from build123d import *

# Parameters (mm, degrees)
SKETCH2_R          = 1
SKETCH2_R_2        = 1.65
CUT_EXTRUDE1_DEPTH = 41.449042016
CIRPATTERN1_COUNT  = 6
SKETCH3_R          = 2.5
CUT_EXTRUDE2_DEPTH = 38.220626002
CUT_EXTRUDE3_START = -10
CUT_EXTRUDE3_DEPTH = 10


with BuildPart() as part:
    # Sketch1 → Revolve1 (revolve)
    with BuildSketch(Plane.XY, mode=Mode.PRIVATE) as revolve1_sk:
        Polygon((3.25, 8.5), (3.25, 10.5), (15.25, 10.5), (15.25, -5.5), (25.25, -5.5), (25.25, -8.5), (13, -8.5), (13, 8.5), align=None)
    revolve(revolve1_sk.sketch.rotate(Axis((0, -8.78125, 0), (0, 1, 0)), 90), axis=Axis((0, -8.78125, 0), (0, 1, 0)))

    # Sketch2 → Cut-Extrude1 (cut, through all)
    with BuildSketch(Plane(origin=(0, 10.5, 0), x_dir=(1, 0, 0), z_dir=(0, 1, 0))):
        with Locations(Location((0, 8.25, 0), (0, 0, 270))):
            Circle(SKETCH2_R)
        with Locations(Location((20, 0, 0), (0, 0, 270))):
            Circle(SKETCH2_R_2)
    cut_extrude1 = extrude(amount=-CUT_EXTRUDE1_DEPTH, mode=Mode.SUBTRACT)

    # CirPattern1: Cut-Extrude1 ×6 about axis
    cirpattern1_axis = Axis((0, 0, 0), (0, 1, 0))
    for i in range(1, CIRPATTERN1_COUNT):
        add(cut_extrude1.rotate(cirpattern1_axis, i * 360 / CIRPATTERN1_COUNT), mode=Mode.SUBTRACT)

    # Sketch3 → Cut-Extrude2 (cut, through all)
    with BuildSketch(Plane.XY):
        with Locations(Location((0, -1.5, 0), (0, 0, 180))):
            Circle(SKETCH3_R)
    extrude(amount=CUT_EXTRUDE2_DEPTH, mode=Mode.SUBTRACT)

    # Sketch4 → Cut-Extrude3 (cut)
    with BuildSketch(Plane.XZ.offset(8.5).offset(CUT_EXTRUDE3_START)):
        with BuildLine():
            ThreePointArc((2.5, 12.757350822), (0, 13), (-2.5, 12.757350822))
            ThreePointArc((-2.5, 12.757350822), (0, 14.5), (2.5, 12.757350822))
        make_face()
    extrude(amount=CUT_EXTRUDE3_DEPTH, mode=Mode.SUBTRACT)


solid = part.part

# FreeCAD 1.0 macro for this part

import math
import FreeCAD as App
import Part
import Sketcher
Q = App.Units.Quantity

doc = App.newDocument("Part")
params = doc.addObject("Spreadsheet::Sheet", "Params")
for row, (alias, value) in enumerate([
    ("sketch1_width", "10 mm"),
    ("sketch1_width2", "12 mm"),
    ("sketch1_height", "2 mm"),
    ("sketch1_height2", "17 mm"),
    ("sketch1_height3", "3 mm"),
    ("revolution_angle", "360 deg"),
    ("sketch2_diameter", "2 mm"),
    ("sketch2_diameter2", "3.3 mm"),
    ("sketch3_diameter", "5 mm"),
    ("sketch4_radius", "13 mm"),
    ("pocket3_length", "10 mm"),
], start=1):
    params.set(f"A{row}", alias)
    params.set(f"B{row}", "=" + value)
    params.setAlias(f"B{row}", alias)

body = doc.addObject("PartDesign::Body", "Body")

sketch1 = body.newObject("Sketcher::SketchObject", "Sketch")
sketch1.AttachmentSupport = (doc.getObject("XY_Plane"), [""])
sketch1.MapMode = "FlatFace"
sketch1.addGeometry(Part.LineSegment(App.Vector(3.25, 10.5, 0), App.Vector(3.25, 8.5, 0)), False)
sketch1.addGeometry(Part.LineSegment(App.Vector(3.25, 8.5, 0), App.Vector(13, 8.5, 0)), False)
sketch1.addGeometry(Part.LineSegment(App.Vector(13, 8.5, 0), App.Vector(13, -8.5, 0)), False)
sketch1.addGeometry(Part.LineSegment(App.Vector(13, -8.5, 0), App.Vector(25.25, -8.5, 0)), False)
sketch1.addGeometry(Part.LineSegment(App.Vector(25.25, -8.5, 0), App.Vector(25.25, -5.5, 0)), False)
sketch1.addGeometry(Part.LineSegment(App.Vector(25.25, -5.5, 0), App.Vector(15.25, -5.5, 0)), False)
sketch1.addGeometry(Part.LineSegment(App.Vector(15.25, -5.5, 0), App.Vector(15.25, 10.5, 0)), False)
sketch1.addGeometry(Part.LineSegment(App.Vector(15.25, 10.5, 0), App.Vector(3.25, 10.5, 0)), False)
sketch1.addConstraint(Sketcher.Constraint("Coincident", 0, 2, 1, 1))
sketch1.addConstraint(Sketcher.Constraint("Coincident", 1, 2, 2, 1))
sketch1.addConstraint(Sketcher.Constraint("Coincident", 2, 2, 3, 1))
sketch1.addConstraint(Sketcher.Constraint("Coincident", 3, 2, 4, 1))
sketch1.addConstraint(Sketcher.Constraint("Coincident", 4, 2, 5, 1))
sketch1.addConstraint(Sketcher.Constraint("Coincident", 5, 2, 6, 1))
sketch1.addConstraint(Sketcher.Constraint("Coincident", 6, 2, 7, 1))
sketch1.addConstraint(Sketcher.Constraint("Coincident", 7, 2, 0, 1))
sketch1.addConstraint(Sketcher.Constraint("Vertical", 0))
sketch1.addConstraint(Sketcher.Constraint("Horizontal", 1))
sketch1.addConstraint(Sketcher.Constraint("Vertical", 2))
sketch1.addConstraint(Sketcher.Constraint("Horizontal", 3))
sketch1.addConstraint(Sketcher.Constraint("Vertical", 4))
sketch1.addConstraint(Sketcher.Constraint("Horizontal", 5))
sketch1.addConstraint(Sketcher.Constraint("Vertical", 6))
sketch1.addConstraint(Sketcher.Constraint("Horizontal", 7))
sketch1.addConstraint(Sketcher.Constraint("DistanceX", 5, 2, 5, 1, Q("10 mm")))
sketch1.addConstraint(Sketcher.Constraint("DistanceX", 7, 2, 7, 1, Q("12 mm")))
sketch1.addConstraint(Sketcher.Constraint("DistanceY", 0, 2, 0, 1, Q("2 mm")))
sketch1.addConstraint(Sketcher.Constraint("DistanceY", 2, 2, 2, 1, Q("17 mm")))
sketch1.addConstraint(Sketcher.Constraint("DistanceY", 4, 1, 4, 2, Q("3 mm")))
sketch1.addConstraint(Sketcher.Constraint("DistanceX", -1, 1, 1, 2, Q("13 mm")))
sketch1.addConstraint(Sketcher.Constraint("DistanceX", 1, 1, 1, 2, Q("9.75 mm")))
sketch1.addConstraint(Sketcher.Constraint("DistanceY", -1, 1, 0, 2, Q("8.5 mm")))
sketch1.setExpression("Constraints[16]", "Params.sketch1_width")
sketch1.setExpression("Constraints[17]", "Params.sketch1_width2")
sketch1.setExpression("Constraints[18]", "Params.sketch1_height")
sketch1.setExpression("Constraints[19]", "Params.sketch1_height2")
sketch1.setExpression("Constraints[20]", "Params.sketch1_height3")
revolution = body.newObject("PartDesign::Revolution", "Revolution")
revolution.Profile = sketch1
revolution.ReferenceAxis = (sketch1, ["V_Axis"])
revolution.setExpression("Angle", "Params.revolution_angle")

sketch2 = body.newObject("Sketcher::SketchObject", "Sketch001")
sketch2.AttachmentSupport = (doc.getObject("XZ_Plane"), [""])
sketch2.MapMode = "FlatFace"
sketch2.AttachmentOffset = App.Placement(App.Vector(0, 0, -10.5), App.Rotation())
sketch2.addGeometry(Part.Circle(App.Vector(0, -8.25, 0), App.Vector(0, 0, 1), 1), False)
sketch2.addGeometry(Part.Circle(App.Vector(20, 0, 0), App.Vector(0, 0, 1), 1.65), False)
sketch2.addConstraint(Sketcher.Constraint("PointOnObject", 0, 3, -2))
sketch2.addConstraint(Sketcher.Constraint("PointOnObject", 1, 3, -1))
sketch2.addConstraint(Sketcher.Constraint("Diameter", 0, Q("2 mm")))
sketch2.addConstraint(Sketcher.Constraint("Diameter", 1, Q("3.3 mm")))
sketch2.addConstraint(Sketcher.Constraint("DistanceX", -1, 1, 1, 3, Q("20 mm")))
sketch2.addConstraint(Sketcher.Constraint("DistanceY", 0, 3, -1, 1, Q("8.25 mm")))
sketch2.setExpression("Constraints[2]", "Params.sketch2_diameter")
sketch2.setExpression("Constraints[3]", "Params.sketch2_diameter2")
pocket1 = body.newObject("PartDesign::Pocket", "Pocket")
pocket1.Profile = sketch2
pocket1.Type = "ThroughAll"
pocket1.Reversed = True
doc.recompute()

polarpattern = body.newObject("PartDesign::PolarPattern", "PolarPattern")
polarpattern.Originals = [pocket1]
polarpattern.Axis = (doc.getObject("Y_Axis"), [""])
polarpattern.Angle = 360
polarpattern.Occurrences = 6
body.Tip = polarpattern

sketch3 = body.newObject("Sketcher::SketchObject", "Sketch002")
sketch3.AttachmentSupport = (doc.getObject("XY_Plane"), [""])
sketch3.MapMode = "FlatFace"
sketch3.addGeometry(Part.Circle(App.Vector(0, -1.5, 0), App.Vector(0, 0, 1), 2.5), False)
sketch3.addConstraint(Sketcher.Constraint("PointOnObject", 0, 3, -2))
sketch3.addConstraint(Sketcher.Constraint("Diameter", 0, Q("5 mm")))
sketch3.addConstraint(Sketcher.Constraint("DistanceY", 0, 3, -1, 1, Q("1.5 mm")))
sketch3.setExpression("Constraints[1]", "Params.sketch3_diameter")
pocket2 = body.newObject("PartDesign::Pocket", "Pocket001")
pocket2.Profile = sketch3
pocket2.Type = "ThroughAll"
pocket2.Reversed = True

sketch4 = body.newObject("Sketcher::SketchObject", "Sketch003")
sketch4.AttachmentSupport = (doc.getObject("XZ_Plane"), [""])
sketch4.MapMode = "FlatFace"
sketch4.AttachmentOffset = App.Placement(App.Vector(0, 0, -1.5), App.Rotation())
sketch4.addGeometry(Part.ArcOfCircle(Part.Circle(App.Vector(0, 0, 0), App.Vector(0, 0, 1), 13), math.radians(78.912511), math.radians(101.087489)), False)
sketch4.addGeometry(Part.ArcOfCircle(Part.Circle(App.Vector(0, 11.835429, 0), App.Vector(0, 0, 1), 2.664571), math.radians(20.242404), math.radians(159.757596)), False)
sketch4.addConstraint(Sketcher.Constraint("Coincident", 0, 1, 1, 1))
sketch4.addConstraint(Sketcher.Constraint("Coincident", 1, 2, 0, 2))
sketch4.addConstraint(Sketcher.Constraint("Coincident", 0, 3, -1, 1))
sketch4.addConstraint(Sketcher.Constraint("PointOnObject", 1, 3, -2))
sketch4.addConstraint(Sketcher.Constraint("Radius", 0, Q("13 mm")))
sketch4.addConstraint(Sketcher.Constraint("DistanceX", 1, 2, 0, 1, Q("5 mm")))
sketch4.addConstraint(Sketcher.Constraint("Radius", 1, Q("2.664571 mm")))
sketch4.setExpression("Constraints[4]", "Params.sketch4_radius")
pocket3 = body.newObject("PartDesign::Pocket", "Pocket002")
pocket3.Profile = sketch4
pocket3.setExpression("Length", "Params.pocket3_length")
pocket3.Reversed = True

doc.recompute()
